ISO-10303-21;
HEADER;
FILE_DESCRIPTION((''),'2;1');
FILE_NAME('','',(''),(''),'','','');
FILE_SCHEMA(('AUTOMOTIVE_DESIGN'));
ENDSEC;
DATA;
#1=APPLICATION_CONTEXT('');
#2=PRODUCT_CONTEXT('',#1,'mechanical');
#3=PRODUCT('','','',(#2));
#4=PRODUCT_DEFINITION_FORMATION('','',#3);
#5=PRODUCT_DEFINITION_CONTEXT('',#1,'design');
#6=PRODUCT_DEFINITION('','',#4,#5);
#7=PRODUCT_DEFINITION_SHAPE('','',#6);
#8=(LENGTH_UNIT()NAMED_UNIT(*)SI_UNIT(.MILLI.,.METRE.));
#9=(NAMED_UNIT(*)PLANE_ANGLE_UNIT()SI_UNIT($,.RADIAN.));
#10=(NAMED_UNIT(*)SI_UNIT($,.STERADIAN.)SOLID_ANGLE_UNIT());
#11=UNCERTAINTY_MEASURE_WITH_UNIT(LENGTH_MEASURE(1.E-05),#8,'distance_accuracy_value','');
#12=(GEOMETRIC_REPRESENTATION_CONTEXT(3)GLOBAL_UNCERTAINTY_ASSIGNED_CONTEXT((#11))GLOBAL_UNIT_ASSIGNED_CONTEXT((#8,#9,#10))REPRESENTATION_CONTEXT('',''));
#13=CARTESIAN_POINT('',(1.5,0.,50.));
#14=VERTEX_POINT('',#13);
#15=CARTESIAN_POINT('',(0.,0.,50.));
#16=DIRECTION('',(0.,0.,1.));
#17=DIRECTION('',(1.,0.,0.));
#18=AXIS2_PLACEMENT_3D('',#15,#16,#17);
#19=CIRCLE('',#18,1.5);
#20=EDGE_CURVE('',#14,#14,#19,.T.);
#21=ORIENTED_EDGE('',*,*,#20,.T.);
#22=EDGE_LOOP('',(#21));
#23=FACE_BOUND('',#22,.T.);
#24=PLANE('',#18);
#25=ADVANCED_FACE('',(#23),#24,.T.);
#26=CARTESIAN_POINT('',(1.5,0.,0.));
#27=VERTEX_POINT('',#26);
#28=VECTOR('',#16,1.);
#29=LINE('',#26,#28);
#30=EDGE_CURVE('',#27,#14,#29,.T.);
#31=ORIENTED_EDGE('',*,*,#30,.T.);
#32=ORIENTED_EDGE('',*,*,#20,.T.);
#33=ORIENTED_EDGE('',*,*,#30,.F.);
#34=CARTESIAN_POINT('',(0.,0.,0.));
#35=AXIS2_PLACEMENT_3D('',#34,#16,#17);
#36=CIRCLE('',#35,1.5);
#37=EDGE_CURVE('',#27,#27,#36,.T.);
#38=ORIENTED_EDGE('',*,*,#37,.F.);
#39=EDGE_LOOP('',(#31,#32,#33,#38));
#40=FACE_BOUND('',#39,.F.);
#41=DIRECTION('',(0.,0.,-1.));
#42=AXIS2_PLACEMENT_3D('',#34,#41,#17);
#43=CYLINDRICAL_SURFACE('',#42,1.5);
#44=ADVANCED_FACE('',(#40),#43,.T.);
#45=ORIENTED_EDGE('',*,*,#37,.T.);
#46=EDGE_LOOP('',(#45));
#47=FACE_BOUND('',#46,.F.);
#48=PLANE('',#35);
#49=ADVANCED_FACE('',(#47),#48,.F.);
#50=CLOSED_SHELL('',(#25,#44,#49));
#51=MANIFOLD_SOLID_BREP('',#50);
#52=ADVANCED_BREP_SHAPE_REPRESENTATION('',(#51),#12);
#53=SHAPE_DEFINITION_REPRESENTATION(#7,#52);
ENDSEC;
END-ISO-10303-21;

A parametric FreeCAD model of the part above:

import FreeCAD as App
import Part
import Sketcher
from FreeCAD import Vector

doc = App.newDocument("Part")
params = doc.addObject("Spreadsheet::Sheet", "Params")
for row, (alias, value) in enumerate([
    ("sketch1_diameter", "3 mm"),
    ("pad1_length", "50 mm"),
], start=1):
    params.set(f"A{row}", alias)
    params.set(f"B{row}", "=" + value)
    params.setAlias(f"B{row}", alias)

body = doc.addObject("PartDesign::Body", "Body")

sketch1 = body.newObject("Sketcher::SketchObject", "Sketch")
sketch1.AttachmentSupport = (doc.getObject("XY_Plane"), [""])
sketch1.MapMode = "FlatFace"
sketch1.addGeometry(Part.Circle(Vector(0, 0, 0), Vector(0, 0, 1), 1.5), False)
sketch1.addConstraint(Sketcher.Constraint("Coincident", 0, 3, -1, 1))
sketch1.addConstraint(Sketcher.Constraint("Diameter", 0, 3.0))
sketch1.setExpression("Constraints[1]", "Params.sketch1_diameter")
pad1 = body.newObject("PartDesign::Pad", "Pad")
pad1.Profile = sketch1
pad1.setExpression("Length", "Params.pad1_length")

doc.recompute()
